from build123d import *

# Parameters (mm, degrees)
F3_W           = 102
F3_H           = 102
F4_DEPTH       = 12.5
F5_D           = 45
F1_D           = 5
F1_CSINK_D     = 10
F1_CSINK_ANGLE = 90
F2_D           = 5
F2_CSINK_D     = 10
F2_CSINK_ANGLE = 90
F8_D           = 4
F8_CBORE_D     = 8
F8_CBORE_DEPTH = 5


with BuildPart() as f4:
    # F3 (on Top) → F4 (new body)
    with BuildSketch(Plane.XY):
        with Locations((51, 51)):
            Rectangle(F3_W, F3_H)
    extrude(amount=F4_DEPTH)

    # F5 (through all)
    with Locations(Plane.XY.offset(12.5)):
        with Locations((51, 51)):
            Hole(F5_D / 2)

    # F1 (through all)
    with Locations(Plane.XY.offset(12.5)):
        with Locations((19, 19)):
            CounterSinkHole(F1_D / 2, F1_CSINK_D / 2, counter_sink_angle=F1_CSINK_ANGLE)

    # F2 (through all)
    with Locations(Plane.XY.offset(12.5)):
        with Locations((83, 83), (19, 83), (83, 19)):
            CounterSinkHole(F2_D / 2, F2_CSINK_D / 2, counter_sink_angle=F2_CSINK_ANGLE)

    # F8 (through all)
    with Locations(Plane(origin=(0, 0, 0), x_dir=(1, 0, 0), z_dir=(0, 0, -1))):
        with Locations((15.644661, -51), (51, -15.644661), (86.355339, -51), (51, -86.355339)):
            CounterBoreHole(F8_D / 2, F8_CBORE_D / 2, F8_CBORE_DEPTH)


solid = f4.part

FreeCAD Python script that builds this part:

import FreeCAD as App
import Part
import Sketcher
from FreeCAD import Vector
Q = App.Units.Quantity


def add_polygon(sketch, points):
    """Adds a closed chain of lines whose ends are joined by coincident constraints."""
    first, n = sketch.GeometryCount, len(points)
    for a, b in zip(points, points[1:] + points[:1]):
        sketch.addGeometry(Part.LineSegment(App.Vector(*a, 0), App.Vector(*b, 0)), False)
    for i in range(n):
        sketch.addConstraint(Sketcher.Constraint("Coincident", first + i, 2, first + (i + 1) % n, 1))

doc = App.newDocument("Part")
body = doc.addObject("PartDesign::Body", "Body")

# Sketch on XY plane
sketch1 = doc.addObject("Sketcher::SketchObject", "Sketch")
body.addObject(sketch1)
sketch1.AttachmentSupport = (doc.XY_Plane, [""])
sketch1.MapMode = "FlatFace"
add_polygon(sketch1, [(0, 102), (0, 0), (102, 0), (102, 102)])  # lines 0-3
sketch1.addConstraint([
    Sketcher.Constraint("Vertical", 0),
    Sketcher.Constraint("Horizontal", 1),
    Sketcher.Constraint("Vertical", 2),
    Sketcher.Constraint("Horizontal", 3),
    Sketcher.Constraint("Coincident", 0, 2, -1, 1),
    Sketcher.Constraint("Equal", 3, 0),
    Sketcher.Constraint("DistanceX", 1, 1, 1, 2, Q("102 mm")),
])
pad1 = doc.addObject("PartDesign::Pad", "Pad")
body.addObject(pad1)
pad1.Profile = sketch1
pad1.Length = 12.5

# Sketch on XY plane
sketch2 = doc.addObject("Sketcher::SketchObject", "Sketch001")
body.addObject(sketch2)
sketch2.AttachmentSupport = (doc.XY_Plane, [""])
sketch2.MapMode = "FlatFace"
sketch2.AttachmentOffset = App.Placement(Vector(0, 0, 12.5), App.Rotation())
sketch2.addGeometry(Part.Circle(Vector(51, 51, 0), Vector(0, 0, 1), 22.5), False)
sketch2.addConstraint([
    Sketcher.Constraint("Diameter", 0, Q("45 mm")),
    Sketcher.Constraint("DistanceX", -1, 1, 0, 3, Q("51 mm")),
    Sketcher.Constraint("DistanceY", -1, 1, 0, 3, Q("51 mm")),
])
doc.recompute()
hole = doc.addObject("PartDesign::Hole", "Hole")
body.addObject(hole)
hole.Profile = sketch2
hole.ThreadType = "None"
hole.Diameter = 45
hole.DepthType = "ThroughAll"

# Sketch on XY plane
sketch3 = doc.addObject("Sketcher::SketchObject", "Sketch002")
body.addObject(sketch3)
sketch3.AttachmentSupport = (doc.XY_Plane, [""])
sketch3.MapMode = "FlatFace"
sketch3.AttachmentOffset = App.Placement(Vector(0, 0, 12.5), App.Rotation())
sketch3.addGeometry(Part.Circle(Vector(19, 19, 0), Vector(0, 0, 1), 2.5), False)
sketch3.addConstraint([
    Sketcher.Constraint("Diameter", 0, Q("5 mm")),
    Sketcher.Constraint("DistanceX", -1, 1, 0, 3, Q("19 mm")),
    Sketcher.Constraint("DistanceY", -1, 1, 0, 3, Q("19 mm")),
])
doc.recompute()
hole2 = doc.addObject("PartDesign::Hole", "Hole001")
body.addObject(hole2)
hole2.Profile = sketch3
hole2.ThreadType = "None"
hole2.Diameter = 5
hole2.DepthType = "ThroughAll"
hole2.HoleCutType = "Countersink"
hole2.HoleCutDiameter = 10
hole2.HoleCutCountersinkAngle = 90

# Sketch on XY plane
sketch4 = doc.addObject("Sketcher::SketchObject", "Sketch003")
body.addObject(sketch4)
sketch4.AttachmentSupport = (doc.XY_Plane, [""])
sketch4.MapMode = "FlatFace"
sketch4.AttachmentOffset = App.Placement(Vector(0, 0, 12.5), App.Rotation())
sketch4.addGeometry([
    Part.Circle(Vector(83, 83, 0), Vector(0, 0, 1), 2.5),
    Part.Circle(Vector(19, 83, 0), Vector(0, 0, 1), 2.5),
    Part.Circle(Vector(83, 19, 0), Vector(0, 0, 1), 2.5),
], False)
sketch4.addConstraint([
    Sketcher.Constraint("Equal", 0, 1),
    Sketcher.Constraint("Equal", 1, 2),
    Sketcher.Constraint("Horizontal", 0, 3, 1, 3),
    Sketcher.Constraint("Vertical", 0, 3, 2, 3),
    Sketcher.Constraint("Diameter", 0, Q("5 mm")),
    Sketcher.Constraint("DistanceX", -1, 1, 0, 3, Q("83 mm")),
    Sketcher.Constraint("DistanceY", -1, 1, 0, 3, Q("83 mm")),
    Sketcher.Constraint("DistanceX", -1, 1, 1, 3, Q("19 mm")),
    Sketcher.Constraint("DistanceY", -1, 1, 2, 3, Q("19 mm")),
])
doc.recompute()
hole3 = doc.addObject("PartDesign::Hole", "Hole002")
body.addObject(hole3)
hole3.Profile = sketch4
hole3.ThreadType = "None"
hole3.Diameter = 5
hole3.DepthType = "ThroughAll"
hole3.HoleCutType = "Countersink"
hole3.HoleCutDiameter = 10
hole3.HoleCutCountersinkAngle = 90

# Sketch on XY plane
sketch5 = doc.addObject("Sketcher::SketchObject", "Sketch004")
body.addObject(sketch5)
sketch5.AttachmentSupport = (doc.XY_Plane, [""])
sketch5.MapMode = "FlatFace"
sketch5.addGeometry([
    Part.Circle(Vector(15.644661, 51, 0), Vector(0, 0, 1), 2),
    Part.Circle(Vector(51, 15.644661, 0), Vector(0, 0, 1), 2),
    Part.Circle(Vector(86.355339, 51, 0), Vector(0, 0, 1), 2),
    Part.Circle(Vector(51, 86.355339, 0), Vector(0, 0, 1), 2),
], False)
sketch5.addConstraint([
    Sketcher.Constraint("Equal", 0, 1),
    Sketcher.Constraint("Equal", 1, 2),
    Sketcher.Constraint("Equal", 2, 3),
    Sketcher.Constraint("Horizontal", 0, 3, 2, 3),
    Sketcher.Constraint("Vertical", 1, 3, 3, 3),
    Sketcher.Constraint("Diameter", 0, Q("4 mm")),
    Sketcher.Constraint("DistanceY", -1, 1, 0, 3, Q("51 mm")),
    Sketcher.Constraint("DistanceX", -1, 1, 1, 3, Q("51 mm")),
    Sketcher.Constraint("DistanceX", -1, 1, 0, 3, Q("15.644661 mm")),
    Sketcher.Constraint("DistanceY", -1, 1, 1, 3, Q("15.644661 mm")),
    Sketcher.Constraint("DistanceX", -1, 1, 2, 3, Q("86.355339 mm")),
    Sketcher.Constraint("DistanceY", -1, 1, 3, 3, Q("86.355339 mm")),
])
doc.recompute()
hole4 = doc.addObject("PartDesign::Hole", "Hole003")
body.addObject(hole4)
hole4.Profile = sketch5
hole4.ThreadType = "None"
hole4.Diameter = 4
hole4.DepthType = "ThroughAll"
hole4.HoleCutType = "Counterbore"
hole4.HoleCutDiameter = 8
hole4.HoleCutDepth = 5
hole4.Reversed = True

doc.recompute()
